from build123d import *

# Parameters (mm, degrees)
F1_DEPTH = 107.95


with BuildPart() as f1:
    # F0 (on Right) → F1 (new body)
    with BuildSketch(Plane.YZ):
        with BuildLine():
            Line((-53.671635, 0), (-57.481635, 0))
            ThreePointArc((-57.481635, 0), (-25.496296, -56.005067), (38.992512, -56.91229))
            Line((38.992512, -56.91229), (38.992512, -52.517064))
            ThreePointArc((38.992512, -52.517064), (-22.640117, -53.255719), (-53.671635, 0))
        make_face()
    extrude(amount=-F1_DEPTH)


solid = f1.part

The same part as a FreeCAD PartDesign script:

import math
import FreeCAD as App
import Part
import Sketcher

V = App.Vector
Q = App.Units.Quantity

doc = App.newDocument("Part")
body = doc.addObject("PartDesign::Body", "Body")

# Sketch on YZ plane
sketch1 = doc.addObject("Sketcher::SketchObject", "Sketch")
body.addObject(sketch1)
sketch1.AttachmentSupport = (doc.YZ_Plane, [""])
sketch1.MapMode = "FlatFace"
sketch1.addGeometry([
    Part.LineSegment(V(-53.7, 0, 0), V(-57.5, 0, 0)),
    Part.ArcOfCircle(Part.Circle(V(7.5, 0, 0), V(0, 0, 1), 65), math.radians(180), math.radians(299)),
    Part.LineSegment(V(39, -56.9, 0), V(39, -52.5, 0)),
    Part.ArcOfCircle(Part.Circle(V(7.5, 0, 0), V(0, 0, 1), 61.2), math.radians(180), math.radians(301)),
], False)
sketch1.addConstraint([
    Sketcher.Constraint("Coincident", 0, 2, 1, 1),
    Sketcher.Constraint("Coincident", 1, 2, 2, 1),
    Sketcher.Constraint("Coincident", 2, 2, 3, 2),
    Sketcher.Constraint("Coincident", 3, 1, 0, 1),
    Sketcher.Constraint("Horizontal", 0),
    Sketcher.Constraint("Vertical", 2),
    Sketcher.Constraint("Coincident", 3, 3, 1, 3),
    Sketcher.Constraint("PointOnObject", 1, 3, -1),
    Sketcher.Constraint("PointOnObject", 0, 2, -1),
    Sketcher.Constraint("Radius", 1, Q("2.56 in")),
    Sketcher.Constraint("Radius", 3, Q("2.41 in")),
    Sketcher.Constraint("DistanceY", 2, 1, 2, 2, Q("4.395226 mm")),
    Sketcher.Constraint("DistanceX", -1, 1, 2, 2, Q("38.992512 mm")),
])
pad1 = doc.addObject("PartDesign::Pad", "Pad")
body.addObject(pad1)
pad1.Profile = sketch1
pad1.Length = Q("4.25 in")
pad1.Reversed = True

doc.recompute()
